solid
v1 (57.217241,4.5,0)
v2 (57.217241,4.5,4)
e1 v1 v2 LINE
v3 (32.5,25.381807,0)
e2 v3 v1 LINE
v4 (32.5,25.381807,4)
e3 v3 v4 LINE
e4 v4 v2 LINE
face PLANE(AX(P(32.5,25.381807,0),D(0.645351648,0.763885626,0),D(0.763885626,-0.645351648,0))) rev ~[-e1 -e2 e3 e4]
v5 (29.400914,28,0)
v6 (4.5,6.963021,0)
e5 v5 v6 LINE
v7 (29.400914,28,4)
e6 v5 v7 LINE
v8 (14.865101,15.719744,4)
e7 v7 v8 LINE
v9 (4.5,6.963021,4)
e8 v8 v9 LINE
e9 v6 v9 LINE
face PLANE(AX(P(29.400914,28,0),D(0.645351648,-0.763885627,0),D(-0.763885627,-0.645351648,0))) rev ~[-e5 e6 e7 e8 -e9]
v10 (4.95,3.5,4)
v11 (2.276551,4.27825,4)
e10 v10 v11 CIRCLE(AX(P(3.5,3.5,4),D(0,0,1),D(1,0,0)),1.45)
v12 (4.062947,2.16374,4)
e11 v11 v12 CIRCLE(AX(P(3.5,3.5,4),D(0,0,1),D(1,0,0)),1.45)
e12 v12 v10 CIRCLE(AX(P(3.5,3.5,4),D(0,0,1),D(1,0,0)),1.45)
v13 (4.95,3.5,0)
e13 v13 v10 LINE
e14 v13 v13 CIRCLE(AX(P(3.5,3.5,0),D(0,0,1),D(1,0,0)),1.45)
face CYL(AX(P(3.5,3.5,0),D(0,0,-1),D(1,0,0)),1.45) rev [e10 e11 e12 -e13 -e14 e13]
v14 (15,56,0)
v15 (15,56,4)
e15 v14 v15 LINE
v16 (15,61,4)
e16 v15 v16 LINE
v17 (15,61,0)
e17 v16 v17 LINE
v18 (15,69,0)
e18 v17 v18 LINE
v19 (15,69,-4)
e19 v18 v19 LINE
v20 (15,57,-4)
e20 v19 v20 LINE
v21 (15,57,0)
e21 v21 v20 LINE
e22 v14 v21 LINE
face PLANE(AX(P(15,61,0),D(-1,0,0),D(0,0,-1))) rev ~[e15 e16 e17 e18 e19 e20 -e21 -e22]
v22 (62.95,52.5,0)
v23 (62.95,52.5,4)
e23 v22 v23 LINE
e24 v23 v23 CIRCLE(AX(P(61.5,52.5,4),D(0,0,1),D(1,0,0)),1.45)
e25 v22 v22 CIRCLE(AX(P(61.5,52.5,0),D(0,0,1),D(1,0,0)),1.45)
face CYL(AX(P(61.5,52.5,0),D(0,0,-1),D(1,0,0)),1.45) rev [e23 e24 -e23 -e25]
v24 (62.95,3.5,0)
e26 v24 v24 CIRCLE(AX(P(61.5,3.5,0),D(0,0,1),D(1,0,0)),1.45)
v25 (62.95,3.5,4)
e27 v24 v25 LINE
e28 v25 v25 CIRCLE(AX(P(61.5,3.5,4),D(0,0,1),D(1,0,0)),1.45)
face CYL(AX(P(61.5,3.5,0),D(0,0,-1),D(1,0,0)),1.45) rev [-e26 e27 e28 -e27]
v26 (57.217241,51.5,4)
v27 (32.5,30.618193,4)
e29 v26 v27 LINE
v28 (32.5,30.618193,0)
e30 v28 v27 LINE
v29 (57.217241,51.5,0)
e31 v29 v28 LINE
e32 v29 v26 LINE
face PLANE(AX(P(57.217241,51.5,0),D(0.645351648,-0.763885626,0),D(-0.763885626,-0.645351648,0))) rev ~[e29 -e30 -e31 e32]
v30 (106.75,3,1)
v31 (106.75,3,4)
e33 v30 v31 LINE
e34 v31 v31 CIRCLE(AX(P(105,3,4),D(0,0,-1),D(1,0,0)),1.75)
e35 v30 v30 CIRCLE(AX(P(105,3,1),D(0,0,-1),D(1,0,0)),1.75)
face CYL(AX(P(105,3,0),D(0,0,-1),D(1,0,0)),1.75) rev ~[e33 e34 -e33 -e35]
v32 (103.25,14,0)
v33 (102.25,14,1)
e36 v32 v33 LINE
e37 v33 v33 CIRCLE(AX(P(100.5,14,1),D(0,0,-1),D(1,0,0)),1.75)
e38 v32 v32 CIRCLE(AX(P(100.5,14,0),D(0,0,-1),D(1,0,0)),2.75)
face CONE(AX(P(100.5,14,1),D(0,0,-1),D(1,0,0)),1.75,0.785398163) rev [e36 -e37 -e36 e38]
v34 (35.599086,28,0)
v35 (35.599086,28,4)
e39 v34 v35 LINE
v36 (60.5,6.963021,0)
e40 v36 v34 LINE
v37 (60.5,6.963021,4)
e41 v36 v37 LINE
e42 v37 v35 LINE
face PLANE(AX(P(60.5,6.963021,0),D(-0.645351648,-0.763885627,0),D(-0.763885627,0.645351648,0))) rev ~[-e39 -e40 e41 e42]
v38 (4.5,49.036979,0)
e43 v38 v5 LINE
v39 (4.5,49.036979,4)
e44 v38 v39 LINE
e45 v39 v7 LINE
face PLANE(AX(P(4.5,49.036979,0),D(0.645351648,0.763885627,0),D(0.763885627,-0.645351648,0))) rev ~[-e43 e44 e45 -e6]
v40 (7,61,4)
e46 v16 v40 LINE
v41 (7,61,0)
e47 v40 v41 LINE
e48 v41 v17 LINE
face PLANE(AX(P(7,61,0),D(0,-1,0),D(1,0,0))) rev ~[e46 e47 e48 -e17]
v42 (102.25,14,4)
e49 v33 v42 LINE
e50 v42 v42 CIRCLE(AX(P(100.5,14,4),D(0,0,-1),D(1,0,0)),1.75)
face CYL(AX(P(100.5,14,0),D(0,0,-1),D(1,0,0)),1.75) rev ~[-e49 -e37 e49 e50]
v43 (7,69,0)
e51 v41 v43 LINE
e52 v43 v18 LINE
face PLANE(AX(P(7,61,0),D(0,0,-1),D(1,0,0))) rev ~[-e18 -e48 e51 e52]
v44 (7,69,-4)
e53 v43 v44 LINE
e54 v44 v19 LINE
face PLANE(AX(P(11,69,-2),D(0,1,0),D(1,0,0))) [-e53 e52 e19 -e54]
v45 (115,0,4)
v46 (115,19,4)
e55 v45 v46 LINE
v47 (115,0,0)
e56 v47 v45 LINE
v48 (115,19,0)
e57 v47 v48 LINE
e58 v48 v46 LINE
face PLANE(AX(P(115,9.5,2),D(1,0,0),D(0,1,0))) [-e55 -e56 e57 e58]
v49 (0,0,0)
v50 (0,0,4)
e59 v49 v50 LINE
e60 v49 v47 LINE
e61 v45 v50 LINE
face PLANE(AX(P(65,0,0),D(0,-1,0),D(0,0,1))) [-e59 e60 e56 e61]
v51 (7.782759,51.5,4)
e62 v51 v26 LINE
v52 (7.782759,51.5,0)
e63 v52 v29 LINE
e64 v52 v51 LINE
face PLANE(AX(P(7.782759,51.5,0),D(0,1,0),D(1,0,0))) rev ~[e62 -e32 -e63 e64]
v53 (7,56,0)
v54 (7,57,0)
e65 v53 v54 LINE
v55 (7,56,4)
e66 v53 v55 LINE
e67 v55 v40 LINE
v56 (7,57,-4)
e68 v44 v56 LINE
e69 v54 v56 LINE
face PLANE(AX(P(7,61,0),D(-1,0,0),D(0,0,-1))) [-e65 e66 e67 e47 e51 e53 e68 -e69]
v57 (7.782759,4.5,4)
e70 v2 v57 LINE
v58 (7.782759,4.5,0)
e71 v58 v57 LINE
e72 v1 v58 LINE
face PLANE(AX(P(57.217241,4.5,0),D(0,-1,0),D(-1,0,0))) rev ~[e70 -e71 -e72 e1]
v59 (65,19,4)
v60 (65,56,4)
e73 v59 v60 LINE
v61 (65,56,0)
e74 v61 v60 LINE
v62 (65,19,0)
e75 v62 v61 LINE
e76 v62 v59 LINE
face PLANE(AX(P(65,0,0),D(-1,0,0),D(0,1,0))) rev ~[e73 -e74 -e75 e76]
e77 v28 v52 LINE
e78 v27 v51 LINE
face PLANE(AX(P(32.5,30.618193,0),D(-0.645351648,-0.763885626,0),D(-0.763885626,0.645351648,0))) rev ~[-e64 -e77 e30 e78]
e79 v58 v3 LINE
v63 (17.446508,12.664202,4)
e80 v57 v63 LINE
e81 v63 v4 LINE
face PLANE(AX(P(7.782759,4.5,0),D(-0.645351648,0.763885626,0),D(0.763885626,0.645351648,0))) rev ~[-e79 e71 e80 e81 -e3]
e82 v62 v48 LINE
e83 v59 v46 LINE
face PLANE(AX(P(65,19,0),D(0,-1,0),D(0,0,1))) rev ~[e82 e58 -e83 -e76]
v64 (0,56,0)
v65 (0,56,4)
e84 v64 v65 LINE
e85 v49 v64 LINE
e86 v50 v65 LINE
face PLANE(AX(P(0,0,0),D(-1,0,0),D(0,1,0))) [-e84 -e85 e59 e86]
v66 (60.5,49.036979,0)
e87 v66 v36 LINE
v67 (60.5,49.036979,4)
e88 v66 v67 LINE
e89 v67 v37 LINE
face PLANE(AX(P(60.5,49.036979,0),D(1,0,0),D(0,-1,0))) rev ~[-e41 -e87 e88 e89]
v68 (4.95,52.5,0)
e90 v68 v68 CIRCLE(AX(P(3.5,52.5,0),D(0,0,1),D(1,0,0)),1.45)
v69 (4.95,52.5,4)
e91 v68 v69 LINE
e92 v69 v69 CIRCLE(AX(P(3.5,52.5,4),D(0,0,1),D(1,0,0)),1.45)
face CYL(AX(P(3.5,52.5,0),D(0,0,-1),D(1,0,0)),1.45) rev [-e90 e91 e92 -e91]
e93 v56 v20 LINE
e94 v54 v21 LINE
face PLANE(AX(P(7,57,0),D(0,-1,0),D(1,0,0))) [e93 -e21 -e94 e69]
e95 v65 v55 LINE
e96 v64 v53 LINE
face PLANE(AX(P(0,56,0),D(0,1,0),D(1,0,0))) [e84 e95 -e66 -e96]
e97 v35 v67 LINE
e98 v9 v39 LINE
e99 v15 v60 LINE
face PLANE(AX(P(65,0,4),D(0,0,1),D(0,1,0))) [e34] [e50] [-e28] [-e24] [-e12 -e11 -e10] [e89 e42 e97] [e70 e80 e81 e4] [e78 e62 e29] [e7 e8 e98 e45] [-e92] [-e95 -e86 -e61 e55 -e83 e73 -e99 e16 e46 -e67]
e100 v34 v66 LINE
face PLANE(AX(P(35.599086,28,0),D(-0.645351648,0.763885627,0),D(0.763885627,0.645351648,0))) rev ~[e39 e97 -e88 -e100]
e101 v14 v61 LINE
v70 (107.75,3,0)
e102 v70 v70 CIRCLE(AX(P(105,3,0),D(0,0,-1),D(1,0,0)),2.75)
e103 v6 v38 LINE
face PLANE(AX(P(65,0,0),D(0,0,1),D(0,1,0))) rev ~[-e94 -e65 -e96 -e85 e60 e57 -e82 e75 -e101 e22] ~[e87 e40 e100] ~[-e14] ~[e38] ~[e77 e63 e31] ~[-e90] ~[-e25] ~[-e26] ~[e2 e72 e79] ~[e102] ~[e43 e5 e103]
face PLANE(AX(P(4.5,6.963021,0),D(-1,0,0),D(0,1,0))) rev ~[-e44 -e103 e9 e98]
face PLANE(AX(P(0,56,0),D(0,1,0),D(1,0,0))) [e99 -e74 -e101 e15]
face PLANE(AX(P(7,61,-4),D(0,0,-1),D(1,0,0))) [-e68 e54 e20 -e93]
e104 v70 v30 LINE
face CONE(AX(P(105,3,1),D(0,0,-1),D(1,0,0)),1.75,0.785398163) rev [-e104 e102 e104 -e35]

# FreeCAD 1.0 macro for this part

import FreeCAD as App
import Part
import Sketcher

V = App.Vector
Q = App.Units.Quantity


def edges_at(feature, points):
    """Names of the edges that pass closest to the given points."""
    edges = feature.Shape.Edges
    near = lambda p: min(range(len(edges)), key=lambda i: edges[i].distToShape(Part.Vertex(*p))[0])
    return sorted({f"Edge{near(p) + 1}" for p in points})

doc = App.newDocument("Part")
params = doc.addObject("Spreadsheet::Sheet", "Params")
for row, (alias, value) in enumerate([
    ("sketch1_diameter", "2.9 mm"),
    ("sketch1_width", "65 mm"),
    ("sketch1_height", "56 mm"),
    ("pad1_length", "4 mm"),
    ("sketch2_diameter", "2.5 mm"),
    ("pocket1_length", "5 mm"),
    ("sketch3_width", "19 mm"),
    ("sketch3_height", "4 mm"),
    ("pad2_length", "50 mm"),
    ("sketch4_width", "8 mm"),
    ("sketch4_height", "4 mm"),
    ("pad3_length", "5 mm"),
    ("sketch5_width", "8 mm"),
    ("sketch5_height", "4 mm"),
    ("pad4_length", "4 mm"),
    ("sketch6_width", "8 mm"),
    ("sketch6_height", "4 mm"),
    ("pad5_length", "8 mm"),
    ("sketch7_diameter", "3.5 mm"),
    ("chamfer_size", "1 mm"),
], start=1):
    params.set(f"A{row}", alias)
    params.set(f"B{row}", "=" + value)
    params.setAlias(f"B{row}", alias)

body = doc.addObject("PartDesign::Body", "Body")

# Sketch on XY plane
sketch1 = body.newObject("Sketcher::SketchObject", "Sketch")
sketch1.AttachmentSupport = (doc.getObject("XY_Plane"), [""])
sketch1.MapMode = "FlatFace"
sketch1.addGeometry([
    Part.LineSegment(V(0, 56, 0), V(0, 0, 0)),  # 0
    Part.LineSegment(V(0, 0, 0), V(65, 0, 0)),  # 1
    Part.LineSegment(V(65, 0, 0), V(65, 56, 0)),  # 2
    Part.LineSegment(V(65, 56, 0), V(0, 56, 0)),  # 3
    Part.Circle(V(3.5, 3.5, 0), V(0, 0, 1), 1.4),  # 4
    Part.LineSegment(V(32.5, 25.4, 0), V(57.2, 4.5, 0)),  # 5
    Part.LineSegment(V(57.2, 4.5, 0), V(7.8, 4.5, 0)),  # 6
    Part.LineSegment(V(7.8, 4.5, 0), V(32.5, 25.4, 0)),  # 7
    Part.Circle(V(61.5, 3.5, 0), V(0, 0, 1), 1.4),  # 8
    Part.LineSegment(V(29.4, 28, 0), V(4.5, 7, 0)),  # 9
    Part.LineSegment(V(4.5, 7, 0), V(4.5, 49, 0)),  # 10
    Part.LineSegment(V(4.5, 49, 0), V(29.4, 28, 0)),  # 11
    Part.Circle(V(3.5, 52.5, 0), V(0, 0, 1), 1.4),  # 12
    Part.LineSegment(V(35.6, 28, 0), V(60.5, 49, 0)),  # 13
    Part.LineSegment(V(60.5, 49, 0), V(60.5, 7, 0)),  # 14
    Part.LineSegment(V(60.5, 7, 0), V(35.6, 28, 0)),  # 15
    Part.LineSegment(V(32.5, 30.6, 0), V(7.8, 51.5, 0)),  # 16
    Part.LineSegment(V(7.8, 51.5, 0), V(57.2, 51.5, 0)),  # 17
    Part.LineSegment(V(57.2, 51.5, 0), V(32.5, 30.6, 0)),  # 18
    Part.Circle(V(61.5, 52.5, 0), V(0, 0, 1), 1.4),  # 19
], False)
sketch1.addConstraint([
    Sketcher.Constraint("Coincident", 0, 2, 1, 1),
    Sketcher.Constraint("Coincident", 1, 2, 2, 1),
    Sketcher.Constraint("Coincident", 2, 2, 3, 1),
    Sketcher.Constraint("Coincident", 3, 2, 0, 1),
    Sketcher.Constraint("Coincident", 5, 2, 6, 1),
    Sketcher.Constraint("Coincident", 6, 2, 7, 1),
    Sketcher.Constraint("Coincident", 7, 2, 5, 1),
    Sketcher.Constraint("Coincident", 9, 2, 10, 1),
    Sketcher.Constraint("Coincident", 10, 2, 11, 1),
    Sketcher.Constraint("Coincident", 11, 2, 9, 1),
    Sketcher.Constraint("Coincident", 13, 2, 14, 1),
    Sketcher.Constraint("Coincident", 14, 2, 15, 1),
    Sketcher.Constraint("Coincident", 15, 2, 13, 1),
    Sketcher.Constraint("Coincident", 16, 2, 17, 1),
    Sketcher.Constraint("Coincident", 17, 2, 18, 1),
    Sketcher.Constraint("Coincident", 18, 2, 16, 1),
    Sketcher.Constraint("Vertical", 0),
    Sketcher.Constraint("Horizontal", 1),
    Sketcher.Constraint("Vertical", 2),
    Sketcher.Constraint("Horizontal", 3),
    Sketcher.Constraint("Horizontal", 6),
    Sketcher.Constraint("Vertical", 10),
    Sketcher.Constraint("Vertical", 14),
    Sketcher.Constraint("Horizontal", 17),
    Sketcher.Constraint("Coincident", 0, 2, -1, 1),
    Sketcher.Constraint("Equal", 4, 8),
    Sketcher.Constraint("Equal", 8, 12),
    Sketcher.Constraint("Equal", 12, 19),
    Sketcher.Constraint("Parallel", 7, 9),
    Sketcher.Constraint("Parallel", 5, 11),
    Sketcher.Constraint("Parallel", 9, 13),
    Sketcher.Constraint("Parallel", 11, 15),
    Sketcher.Constraint("Parallel", 15, 16),
    Sketcher.Constraint("Parallel", 13, 18),
    Sketcher.Constraint("Horizontal", 4, 3, 8, 3),
    Sketcher.Constraint("Horizontal", 12, 3, 19, 3),
    Sketcher.Constraint("Horizontal", 10, 2, 13, 2),
    Sketcher.Constraint("Horizontal", 9, 2, 14, 2),
    Sketcher.Constraint("Horizontal", 11, 2, 15, 2),
    Sketcher.Constraint("Vertical", 4, 3, 12, 3),
    Sketcher.Constraint("Vertical", 8, 3, 19, 3),
    Sketcher.Constraint("Vertical", 6, 2, 16, 2),
    Sketcher.Constraint("Vertical", 5, 2, 17, 2),
    Sketcher.Constraint("Diameter", 4, Q("2.9 mm")),
    Sketcher.Constraint("DistanceX", 1, 1, 1, 2, Q("65 mm")),
    Sketcher.Constraint("DistanceY", 0, 2, 0, 1, Q("56 mm")),
    Sketcher.Constraint("DistanceY", -1, 1, 11, 2, Q("28 mm")),
    Sketcher.Constraint("DistanceX", 4, 3, 8, 3, Q("58 mm")),
    Sketcher.Constraint("DistanceY", 4, 3, 12, 3, Q("49 mm")),
    Sketcher.Constraint("DistanceY", 8, 3, 5, 2, Q("1 mm")),
    Sketcher.Constraint("DistanceX", 4, 3, 7, 2, Q("29 mm")),
    Sketcher.Constraint("DistanceX", 4, 3, 9, 2, Q("1 mm")),
    Sketcher.Constraint("DistanceX", 13, 2, 19, 3, Q("1 mm")),
    Sketcher.Constraint("DistanceY", 16, 2, 12, 3, Q("1 mm")),
    Sketcher.Constraint("DistanceX", -1, 1, 4, 3, Q("3.5 mm")),
    Sketcher.Constraint("DistanceY", -1, 1, 4, 3, Q("3.5 mm")),
    Sketcher.Constraint("Distance", 9, Q("32.597699 mm")),
    Sketcher.Constraint("DistanceY", 10, 1, 10, 2, Q("42.073958 mm")),
    Sketcher.Constraint("DistanceX", 6, 2, 6, 1, Q("49.434482 mm")),
])
sketch1.setExpression("Constraints[43]", "Params.sketch1_diameter")
sketch1.setExpression("Constraints[44]", "Params.sketch1_width")
sketch1.setExpression("Constraints[45]", "Params.sketch1_height")
pad1 = body.newObject("PartDesign::Pad", "Pad")
pad1.Profile = sketch1
pad1.setExpression("Length", "Params.pad1_length")

# Sketch on an angled plane
sketch2 = body.newObject("Sketcher::SketchObject", "Sketch001")
sketch2.Placement = App.Placement(V(-1.55844, 1.844684, 0), App.Rotation(V(-0.763885609, -0.645351669, 0), V(0, 0, 1), V(-0.645351669, 0.763885609, 0), "ZXY"))
sketch2.addGeometry([
    Part.Circle(V(-21.5, 5.3, 0), V(0, 0, 1), 1.2),
    Part.Circle(V(-4.5, 5.3, 0), V(0, 0, 1), 1.2),
], False)
sketch2.addConstraint([
    Sketcher.Constraint("Equal", 0, 1),
    Sketcher.Constraint("Horizontal", 0, 3, 1, 3),
    Sketcher.Constraint("Diameter", 0, Q("2.5 mm")),
    Sketcher.Constraint("DistanceX", 0, 3, 1, 3, Q("17 mm")),
    Sketcher.Constraint("DistanceX", 0, 3, -1, 1, Q("21.5 mm")),
    Sketcher.Constraint("DistanceY", -1, 1, 0, 3, Q("5.25 mm")),
])
sketch2.setExpression("Constraints[2]", "Params.sketch2_diameter")
pocket1 = body.newObject("PartDesign::Pocket", "Pocket")
pocket1.Profile = sketch2
pocket1.setExpression("Length", "Params.pocket1_length")

# Sketch on YZ plane
sketch3 = body.newObject("Sketcher::SketchObject", "Sketch002")
sketch3.AttachmentSupport = (doc.getObject("YZ_Plane"), [""])
sketch3.MapMode = "FlatFace"
sketch3.AttachmentOffset = App.Placement(V(0, 0, 65), App.Rotation())
sketch3.addGeometry([
    Part.LineSegment(V(0, 4, 0), V(0, 0, 0)),
    Part.LineSegment(V(0, 0, 0), V(19, 0, 0)),
    Part.LineSegment(V(19, 0, 0), V(19, 4, 0)),
    Part.LineSegment(V(19, 4, 0), V(0, 4, 0)),
], False)
sketch3.addConstraint([
    Sketcher.Constraint("Coincident", 0, 2, 1, 1),
    Sketcher.Constraint("Coincident", 1, 2, 2, 1),
    Sketcher.Constraint("Coincident", 2, 2, 3, 1),
    Sketcher.Constraint("Coincident", 3, 2, 0, 1),
    Sketcher.Constraint("Vertical", 0),
    Sketcher.Constraint("Horizontal", 1),
    Sketcher.Constraint("Vertical", 2),
    Sketcher.Constraint("Horizontal", 3),
    Sketcher.Constraint("Coincident", 0, 2, -1, 1),
    Sketcher.Constraint("DistanceX", 1, 1, 1, 2, Q("19 mm")),
    Sketcher.Constraint("DistanceY", 0, 2, 0, 1, Q("4 mm")),
])
sketch3.setExpression("Constraints[9]", "Params.sketch3_width")
sketch3.setExpression("Constraints[10]", "Params.sketch3_height")
pad2 = body.newObject("PartDesign::Pad", "Pad001")
pad2.Profile = sketch3
pad2.setExpression("Length", "Params.pad2_length")

# Sketch on XZ plane
sketch4 = body.newObject("Sketcher::SketchObject", "Sketch003")
sketch4.AttachmentSupport = (doc.getObject("XZ_Plane"), [""])
sketch4.MapMode = "FlatFace"
sketch4.AttachmentOffset = App.Placement(V(0, 0, -56), App.Rotation())
sketch4.addGeometry([
    Part.LineSegment(V(15, 4, 0), V(15, 0, 0)),
    Part.LineSegment(V(15, 0, 0), V(7, 0, 0)),
    Part.LineSegment(V(7, 0, 0), V(7, 4, 0)),
    Part.LineSegment(V(7, 4, 0), V(15, 4, 0)),
], False)
sketch4.addConstraint([
    Sketcher.Constraint("Coincident", 0, 2, 1, 1),
    Sketcher.Constraint("Coincident", 1, 2, 2, 1),
    Sketcher.Constraint("Coincident", 2, 2, 3, 1),
    Sketcher.Constraint("Coincident", 3, 2, 0, 1),
    Sketcher.Constraint("Vertical", 0),
    Sketcher.Constraint("Horizontal", 1),
    Sketcher.Constraint("Vertical", 2),
    Sketcher.Constraint("Horizontal", 3),
    Sketcher.Constraint("PointOnObject", 0, 2, -1),
    Sketcher.Constraint("DistanceX", 1, 2, 1, 1, Q("8 mm")),
    Sketcher.Constraint("DistanceY", 0, 2, 0, 1, Q("4 mm")),
    Sketcher.Constraint("DistanceX", -1, 1, 0, 2, Q("15 mm")),
])
sketch4.setExpression("Constraints[9]", "Params.sketch4_width")
sketch4.setExpression("Constraints[10]", "Params.sketch4_height")
pad3 = body.newObject("PartDesign::Pad", "Pad002")
pad3.Profile = sketch4
pad3.setExpression("Length", "Params.pad3_length")
pad3.Reversed = True

# Sketch on XY plane
sketch5 = body.newObject("Sketcher::SketchObject", "Sketch004")
sketch5.AttachmentSupport = (doc.getObject("XY_Plane"), [""])
sketch5.MapMode = "FlatFace"
sketch5.addGeometry([
    Part.LineSegment(V(7, 57, 0), V(7, 61, 0)),
    Part.LineSegment(V(7, 61, 0), V(15, 61, 0)),
    Part.LineSegment(V(15, 61, 0), V(15, 57, 0)),
    Part.LineSegment(V(15, 57, 0), V(7, 57, 0)),
], False)
sketch5.addConstraint([
    Sketcher.Constraint("Coincident", 0, 2, 1, 1),
    Sketcher.Constraint("Coincident", 1, 2, 2, 1),
    Sketcher.Constraint("Coincident", 2, 2, 3, 1),
    Sketcher.Constraint("Coincident", 3, 2, 0, 1),
    Sketcher.Constraint("Vertical", 0),
    Sketcher.Constraint("Horizontal", 1),
    Sketcher.Constraint("Vertical", 2),
    Sketcher.Constraint("Horizontal", 3),
    Sketcher.Constraint("DistanceX", 1, 1, 1, 2, Q("8 mm")),
    Sketcher.Constraint("DistanceY", 0, 1, 0, 2, Q("4 mm")),
    Sketcher.Constraint("DistanceX", -1, 1, 0, 2, Q("7 mm")),
    Sketcher.Constraint("DistanceY", -1, 1, 0, 2, Q("61 mm")),
])
sketch5.setExpression("Constraints[8]", "Params.sketch5_width")
sketch5.setExpression("Constraints[9]", "Params.sketch5_height")
pad4 = body.newObject("PartDesign::Pad", "Pad003")
pad4.Profile = sketch5
pad4.setExpression("Length", "Params.pad4_length")
pad4.Reversed = True

# Sketch on XZ plane
sketch6 = body.newObject("Sketcher::SketchObject", "Sketch005")
sketch6.AttachmentSupport = (doc.getObject("XZ_Plane"), [""])
sketch6.MapMode = "FlatFace"
sketch6.AttachmentOffset = App.Placement(V(0, 0, -61), App.Rotation())
sketch6.addGeometry([
    Part.LineSegment(V(7, -4, 0), V(7, 0, 0)),
    Part.LineSegment(V(7, 0, 0), V(15, 0, 0)),
    Part.LineSegment(V(15, 0, 0), V(15, -4, 0)),
    Part.LineSegment(V(15, -4, 0), V(7, -4, 0)),
], False)
sketch6.addConstraint([
    Sketcher.Constraint("Coincident", 0, 2, 1, 1),
    Sketcher.Constraint("Coincident", 1, 2, 2, 1),
    Sketcher.Constraint("Coincident", 2, 2, 3, 1),
    Sketcher.Constraint("Coincident", 3, 2, 0, 1),
    Sketcher.Constraint("Vertical", 0),
    Sketcher.Constraint("Horizontal", 1),
    Sketcher.Constraint("Vertical", 2),
    Sketcher.Constraint("Horizontal", 3),
    Sketcher.Constraint("PointOnObject", 0, 2, -1),
    Sketcher.Constraint("DistanceX", 1, 1, 1, 2, Q("8 mm")),
    Sketcher.Constraint("DistanceY", 0, 1, 0, 2, Q("4 mm")),
    Sketcher.Constraint("DistanceX", -1, 1, 0, 2, Q("7 mm")),
])
sketch6.setExpression("Constraints[9]", "Params.sketch6_width")
sketch6.setExpression("Constraints[10]", "Params.sketch6_height")
pad5 = body.newObject("PartDesign::Pad", "Pad004")
pad5.Profile = sketch6
pad5.setExpression("Length", "Params.pad5_length")
pad5.Reversed = True

# Sketch on XY plane
sketch7 = body.newObject("Sketcher::SketchObject", "Sketch006")
sketch7.AttachmentSupport = (doc.getObject("XY_Plane"), [""])
sketch7.MapMode = "FlatFace"
sketch7.addGeometry([
    Part.Circle(V(105, 3, 0), V(0, 0, 1), 1.8),
    Part.Circle(V(100.5, 14, 0), V(0, 0, 1), 1.8),
], False)
sketch7.addConstraint([
    Sketcher.Constraint("Equal", 0, 1),
    Sketcher.Constraint("Diameter", 0, Q("3.5 mm")),
    Sketcher.Constraint("DistanceX", -1, 1, 0, 3, Q("105 mm")),
    Sketcher.Constraint("DistanceY", -1, 1, 0, 3, Q("3 mm")),
    Sketcher.Constraint("DistanceY", -1, 1, 1, 3, Q("14 mm")),
    Sketcher.Constraint("DistanceX", -1, 1, 1, 3, Q("100.5 mm")),
])
sketch7.setExpression("Constraints[1]", "Params.sketch7_diameter")
pocket2 = body.newObject("PartDesign::Pocket", "Pocket001")
pocket2.Profile = sketch7
pocket2.Type = "ThroughAll"
pocket2.Reversed = True
doc.recompute()

chamfer = body.newObject("PartDesign::Chamfer", "Chamfer")
chamfer.Base = (pocket2, edges_at(pocket2, [(98.75, 14, 0), (103.25, 3, 0)]))
chamfer.setExpression("Size", "Params.chamfer_size")

doc.recompute()
